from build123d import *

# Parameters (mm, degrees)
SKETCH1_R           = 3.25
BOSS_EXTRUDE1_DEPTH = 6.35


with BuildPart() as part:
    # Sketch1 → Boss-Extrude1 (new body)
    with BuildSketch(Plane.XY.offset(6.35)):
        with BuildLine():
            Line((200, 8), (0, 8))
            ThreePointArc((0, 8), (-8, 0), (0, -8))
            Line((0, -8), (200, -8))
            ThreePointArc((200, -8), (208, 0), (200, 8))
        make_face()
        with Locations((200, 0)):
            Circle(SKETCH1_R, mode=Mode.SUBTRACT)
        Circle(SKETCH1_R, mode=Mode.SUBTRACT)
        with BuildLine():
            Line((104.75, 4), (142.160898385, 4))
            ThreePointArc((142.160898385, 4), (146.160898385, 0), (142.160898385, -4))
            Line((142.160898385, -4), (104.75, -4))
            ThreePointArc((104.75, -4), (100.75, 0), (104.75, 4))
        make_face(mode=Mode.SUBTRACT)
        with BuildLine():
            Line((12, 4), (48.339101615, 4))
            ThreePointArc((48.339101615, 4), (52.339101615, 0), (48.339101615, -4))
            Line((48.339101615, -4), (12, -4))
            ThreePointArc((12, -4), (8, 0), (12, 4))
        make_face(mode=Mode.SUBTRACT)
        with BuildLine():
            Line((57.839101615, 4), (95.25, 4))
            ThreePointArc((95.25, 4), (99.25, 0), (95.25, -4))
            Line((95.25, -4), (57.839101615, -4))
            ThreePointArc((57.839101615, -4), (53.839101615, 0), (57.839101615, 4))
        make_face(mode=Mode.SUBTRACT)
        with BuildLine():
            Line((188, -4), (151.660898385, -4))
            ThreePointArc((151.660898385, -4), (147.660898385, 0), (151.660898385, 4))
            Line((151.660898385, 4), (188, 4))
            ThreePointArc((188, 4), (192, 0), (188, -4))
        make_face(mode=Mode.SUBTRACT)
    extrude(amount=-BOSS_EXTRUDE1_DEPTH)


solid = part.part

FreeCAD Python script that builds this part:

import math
import FreeCAD as App
import Part
import Sketcher

V = App.Vector
Q = App.Units.Quantity

doc = App.newDocument("Part")
params = doc.addObject("Spreadsheet::Sheet", "Params")
for row, (alias, value) in enumerate([
    ("sketch1_radius", "8 mm"),
    ("sketch1_radius2", "4 mm"),
    ("sketch1_diameter", "6.5 mm"),
    ("sketch1_width", "200 mm"),
    ("pad1_length", "6.35 mm"),
], start=1):
    params.set(f"A{row}", alias)
    params.set(f"B{row}", "=" + value)
    params.setAlias(f"B{row}", alias)

body = doc.addObject("PartDesign::Body", "Body")

# Sketch on XY plane
sketch1 = body.newObject("Sketcher::SketchObject", "Sketch")
sketch1.AttachmentSupport = (doc.getObject("XY_Plane"), [""])
sketch1.MapMode = "FlatFace"
sketch1.AttachmentOffset = App.Placement(V(0, 0, 6.35), App.Rotation())
sketch1.addGeometry([
    Part.LineSegment(V(200, 8, 0), V(0, 8, 0)),  # 0
    Part.ArcOfCircle(Part.Circle(V(0, 0, 0), V(0, 0, 1), 8), math.radians(90), math.radians(270)),  # 1
    Part.LineSegment(V(0, -8, 0), V(200, -8, 0)),  # 2
    Part.ArcOfCircle(Part.Circle(V(200, 0, 0), V(0, 0, 1), 8), math.radians(-90), math.radians(90)),  # 3
    Part.Circle(V(0, 0, 0), V(0, 0, 1), 3.25),  # 4
    Part.ArcOfCircle(Part.Circle(V(12, 0, 0), V(0, 0, 1), 4), math.radians(90), math.radians(270)),  # 5
    Part.LineSegment(V(12, 4, 0), V(48.339102, 4, 0)),  # 6
    Part.ArcOfCircle(Part.Circle(V(48.339102, 0, 0), V(0, 0, 1), 4), math.radians(-90), math.radians(90)),  # 7
    Part.LineSegment(V(48.339102, -4, 0), V(12, -4, 0)),  # 8
    Part.ArcOfCircle(Part.Circle(V(57.839102, 0, 0), V(0, 0, 1), 4), math.radians(90), math.radians(270)),  # 9
    Part.LineSegment(V(57.839102, 4, 0), V(95.25, 4, 0)),  # 10
    Part.ArcOfCircle(Part.Circle(V(95.25, 0, 0), V(0, 0, 1), 4), math.radians(-90), math.radians(90)),  # 11
    Part.LineSegment(V(95.25, -4, 0), V(57.839102, -4, 0)),  # 12
    Part.ArcOfCircle(Part.Circle(V(104.75, 0, 0), V(0, 0, 1), 4), math.radians(90), math.radians(270)),  # 13
    Part.LineSegment(V(104.75, 4, 0), V(142.160898, 4, 0)),  # 14
    Part.ArcOfCircle(Part.Circle(V(142.160898, 0, 0), V(0, 0, 1), 4), math.radians(-90), math.radians(90)),  # 15
    Part.LineSegment(V(142.160898, -4, 0), V(104.75, -4, 0)),  # 16
    Part.ArcOfCircle(Part.Circle(V(188, 0, 0), V(0, 0, 1), 4), math.radians(-90), math.radians(90)),  # 17
    Part.LineSegment(V(188, -4, 0), V(151.660898, -4, 0)),  # 18
    Part.ArcOfCircle(Part.Circle(V(151.660898, 0, 0), V(0, 0, 1), 4), math.radians(90), math.radians(270)),  # 19
    Part.LineSegment(V(151.660898, 4, 0), V(188, 4, 0)),  # 20
    Part.Circle(V(200, 0, 0), V(0, 0, 1), 3.25),  # 21
], False)
sketch1.addConstraint([
    Sketcher.Constraint("Tangent", 0, 2, 1, 1),
    Sketcher.Constraint("Tangent", 1, 2, 2, 1),
    Sketcher.Constraint("Tangent", 2, 2, 3, 1),
    Sketcher.Constraint("Tangent", 3, 2, 0, 1),
    Sketcher.Constraint("Tangent", 5, 1, 6, 1),
    Sketcher.Constraint("Tangent", 6, 2, 7, 2),
    Sketcher.Constraint("Tangent", 7, 1, 8, 1),
    Sketcher.Constraint("Tangent", 8, 2, 5, 2),
    Sketcher.Constraint("Tangent", 9, 1, 10, 1),
    Sketcher.Constraint("Tangent", 10, 2, 11, 2),
    Sketcher.Constraint("Tangent", 11, 1, 12, 1),
    Sketcher.Constraint("Tangent", 12, 2, 9, 2),
    Sketcher.Constraint("Tangent", 13, 1, 14, 1),
    Sketcher.Constraint("Tangent", 14, 2, 15, 2),
    Sketcher.Constraint("Tangent", 15, 1, 16, 1),
    Sketcher.Constraint("Tangent", 16, 2, 13, 2),
    Sketcher.Constraint("Tangent", 17, 1, 18, 1),
    Sketcher.Constraint("Tangent", 18, 2, 19, 2),
    Sketcher.Constraint("Tangent", 19, 1, 20, 1),
    Sketcher.Constraint("Tangent", 20, 2, 17, 2),
    Sketcher.Constraint("Horizontal", 0),
    Sketcher.Constraint("Horizontal", 2),
    Sketcher.Constraint("Horizontal", 6),
    Sketcher.Constraint("Horizontal", 8),
    Sketcher.Constraint("Horizontal", 10),
    Sketcher.Constraint("Horizontal", 12),
    Sketcher.Constraint("Horizontal", 14),
    Sketcher.Constraint("Horizontal", 16),
    Sketcher.Constraint("Horizontal", 18),
    Sketcher.Constraint("Horizontal", 20),
    Sketcher.Constraint("Coincident", 1, 3, -1, 1),
    Sketcher.Constraint("Coincident", 4, 3, -1, 1),
    Sketcher.Constraint("Coincident", 21, 3, 3, 3),
    Sketcher.Constraint("Equal", 7, 9),
    Sketcher.Constraint("Equal", 11, 13),
    Sketcher.Constraint("Equal", 15, 17),
    Sketcher.Constraint("Equal", 4, 21),
    Sketcher.Constraint("PointOnObject", 5, 3, -1),
    Sketcher.Constraint("PointOnObject", 9, 3, -1),
    Sketcher.Constraint("PointOnObject", 13, 3, -1),
    Sketcher.Constraint("PointOnObject", 17, 3, -1),
    Sketcher.Constraint("Equal", 12, 14),
    Sketcher.Constraint("Equal", 8, 18),
    Sketcher.Constraint("Radius", 1, Q("8 mm")),
    Sketcher.Constraint("Radius", 5, Q("4 mm")),
    Sketcher.Constraint("Diameter", 4, Q("6.5 mm")),
    Sketcher.Constraint("DistanceX", 0, 2, 0, 1, Q("200 mm")),
    Sketcher.Constraint("DistanceX", -1, 1, 5, 3, Q("12 mm")),
    Sketcher.Constraint("DistanceX", -1, 1, 17, 3, Q("188 mm")),
    Sketcher.Constraint("DistanceX", 7, 3, 9, 3, Q("9.5 mm")),
    Sketcher.Constraint("DistanceX", 11, 3, 13, 3, Q("9.5 mm")),
    Sketcher.Constraint("DistanceX", 15, 3, 19, 3, Q("9.5 mm")),
    Sketcher.Constraint("DistanceX", 6, 1, 6, 2, Q("36.339102 mm")),
])
sketch1.setExpression("Constraints[43]", "Params.sketch1_radius")
sketch1.setExpression("Constraints[44]", "Params.sketch1_radius2")
sketch1.setExpression("Constraints[45]", "Params.sketch1_diameter")
sketch1.setExpression("Constraints[46]", "Params.sketch1_width")
pad1 = body.newObject("PartDesign::Pad", "Pad")
pad1.Profile = sketch1
pad1.setExpression("Length", "Params.pad1_length")
pad1.Reversed = True

doc.recompute()
